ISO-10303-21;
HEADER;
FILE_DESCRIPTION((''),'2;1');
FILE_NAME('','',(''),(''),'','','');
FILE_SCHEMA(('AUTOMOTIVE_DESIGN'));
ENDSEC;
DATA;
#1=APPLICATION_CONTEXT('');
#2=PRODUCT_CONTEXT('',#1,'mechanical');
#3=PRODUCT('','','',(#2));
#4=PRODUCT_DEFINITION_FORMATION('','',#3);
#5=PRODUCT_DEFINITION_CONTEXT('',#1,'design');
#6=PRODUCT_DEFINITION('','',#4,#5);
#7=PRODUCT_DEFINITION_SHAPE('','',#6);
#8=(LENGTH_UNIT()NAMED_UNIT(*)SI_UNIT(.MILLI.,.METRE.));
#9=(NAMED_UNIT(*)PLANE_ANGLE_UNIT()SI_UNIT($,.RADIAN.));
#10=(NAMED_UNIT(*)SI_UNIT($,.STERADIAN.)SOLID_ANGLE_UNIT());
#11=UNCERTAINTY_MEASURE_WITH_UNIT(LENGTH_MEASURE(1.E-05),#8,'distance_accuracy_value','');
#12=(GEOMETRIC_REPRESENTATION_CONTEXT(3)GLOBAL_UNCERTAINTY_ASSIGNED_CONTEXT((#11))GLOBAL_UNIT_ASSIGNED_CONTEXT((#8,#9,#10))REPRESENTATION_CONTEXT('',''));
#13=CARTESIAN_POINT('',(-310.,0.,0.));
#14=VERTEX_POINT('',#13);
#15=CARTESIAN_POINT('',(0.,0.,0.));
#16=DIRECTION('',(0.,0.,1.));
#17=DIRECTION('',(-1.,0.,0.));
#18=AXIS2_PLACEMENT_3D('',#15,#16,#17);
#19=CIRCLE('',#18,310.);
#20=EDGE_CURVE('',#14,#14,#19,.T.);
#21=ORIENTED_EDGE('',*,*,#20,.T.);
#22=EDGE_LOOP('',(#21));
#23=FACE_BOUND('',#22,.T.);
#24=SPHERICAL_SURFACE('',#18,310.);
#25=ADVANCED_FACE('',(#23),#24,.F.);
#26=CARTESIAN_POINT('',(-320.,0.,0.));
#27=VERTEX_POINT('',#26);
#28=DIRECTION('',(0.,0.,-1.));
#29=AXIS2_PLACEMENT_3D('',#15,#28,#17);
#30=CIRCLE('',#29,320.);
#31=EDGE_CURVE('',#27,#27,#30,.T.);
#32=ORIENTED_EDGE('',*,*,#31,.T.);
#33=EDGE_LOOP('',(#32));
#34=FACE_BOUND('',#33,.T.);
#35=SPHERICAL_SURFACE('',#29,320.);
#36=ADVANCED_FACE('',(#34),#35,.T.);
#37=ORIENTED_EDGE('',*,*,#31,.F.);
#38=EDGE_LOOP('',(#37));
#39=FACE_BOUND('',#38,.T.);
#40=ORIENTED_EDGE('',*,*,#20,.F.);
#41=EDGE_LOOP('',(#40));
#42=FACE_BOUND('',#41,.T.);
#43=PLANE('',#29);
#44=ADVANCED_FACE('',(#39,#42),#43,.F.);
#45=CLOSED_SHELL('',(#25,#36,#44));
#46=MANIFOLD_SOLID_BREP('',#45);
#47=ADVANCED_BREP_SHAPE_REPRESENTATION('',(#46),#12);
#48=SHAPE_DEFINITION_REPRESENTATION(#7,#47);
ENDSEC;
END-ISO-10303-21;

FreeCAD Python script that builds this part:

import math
import FreeCAD as App
import Part
import Sketcher

V = App.Vector

doc = App.newDocument("Part")
params = doc.addObject("Spreadsheet::Sheet", "Params")
for row, (alias, value) in enumerate([
    ("sketch1_radius", "320 mm"),
    ("sketch1_radius2", "310 mm"),
    ("revolution_angle", "180 deg"),
], start=1):
    params.set(f"A{row}", alias)
    params.set(f"B{row}", "=" + value)
    params.setAlias(f"B{row}", alias)

body = doc.addObject("PartDesign::Body", "Body")

# Sketch on XY plane
sketch1 = body.newObject("Sketcher::SketchObject", "Sketch")
sketch1.AttachmentSupport = (doc.getObject("XY_Plane"), [""])
sketch1.MapMode = "FlatFace"
sketch1.addGeometry([
    Part.LineSegment(V(0, 310, 0), V(0, 320, 0)),
    Part.ArcOfCircle(Part.Circle(V(0, 0, 0), V(0, 0, 1), 320), math.radians(90), math.radians(270)),
    Part.LineSegment(V(0, -320, 0), V(0, -310, 0)),
    Part.ArcOfCircle(Part.Circle(V(0, 0, 0), V(0, 0, 1), 310), math.radians(90), math.radians(270)),
], False)
sketch1.addConstraint([
    Sketcher.Constraint("Coincident", 0, 2, 1, 1),
    Sketcher.Constraint("Coincident", 1, 2, 2, 1),
    Sketcher.Constraint("Coincident", 2, 2, 3, 2),
    Sketcher.Constraint("Coincident", 3, 1, 0, 1),
    Sketcher.Constraint("Vertical", 0),
    Sketcher.Constraint("Vertical", 2),
    Sketcher.Constraint("Coincident", 1, 3, -1, 1),
    Sketcher.Constraint("Coincident", 3, 3, -1, 1),
    Sketcher.Constraint("PointOnObject", 0, 2, -2),
    Sketcher.Constraint("PointOnObject", 1, 2, -2),
    Sketcher.Constraint("Radius", 1, 320.0),
    Sketcher.Constraint("Radius", 3, 310.0),
])
sketch1.setExpression("Constraints[10]", "Params.sketch1_radius")
sketch1.setExpression("Constraints[11]", "Params.sketch1_radius2")
revolution = body.newObject("PartDesign::Revolution", "Revolution")
revolution.Profile = sketch1
revolution.ReferenceAxis = (sketch1, ["V_Axis"])
revolution.setExpression("Angle", "Params.revolution_angle")
revolution.Reversed = True

doc.recompute()
